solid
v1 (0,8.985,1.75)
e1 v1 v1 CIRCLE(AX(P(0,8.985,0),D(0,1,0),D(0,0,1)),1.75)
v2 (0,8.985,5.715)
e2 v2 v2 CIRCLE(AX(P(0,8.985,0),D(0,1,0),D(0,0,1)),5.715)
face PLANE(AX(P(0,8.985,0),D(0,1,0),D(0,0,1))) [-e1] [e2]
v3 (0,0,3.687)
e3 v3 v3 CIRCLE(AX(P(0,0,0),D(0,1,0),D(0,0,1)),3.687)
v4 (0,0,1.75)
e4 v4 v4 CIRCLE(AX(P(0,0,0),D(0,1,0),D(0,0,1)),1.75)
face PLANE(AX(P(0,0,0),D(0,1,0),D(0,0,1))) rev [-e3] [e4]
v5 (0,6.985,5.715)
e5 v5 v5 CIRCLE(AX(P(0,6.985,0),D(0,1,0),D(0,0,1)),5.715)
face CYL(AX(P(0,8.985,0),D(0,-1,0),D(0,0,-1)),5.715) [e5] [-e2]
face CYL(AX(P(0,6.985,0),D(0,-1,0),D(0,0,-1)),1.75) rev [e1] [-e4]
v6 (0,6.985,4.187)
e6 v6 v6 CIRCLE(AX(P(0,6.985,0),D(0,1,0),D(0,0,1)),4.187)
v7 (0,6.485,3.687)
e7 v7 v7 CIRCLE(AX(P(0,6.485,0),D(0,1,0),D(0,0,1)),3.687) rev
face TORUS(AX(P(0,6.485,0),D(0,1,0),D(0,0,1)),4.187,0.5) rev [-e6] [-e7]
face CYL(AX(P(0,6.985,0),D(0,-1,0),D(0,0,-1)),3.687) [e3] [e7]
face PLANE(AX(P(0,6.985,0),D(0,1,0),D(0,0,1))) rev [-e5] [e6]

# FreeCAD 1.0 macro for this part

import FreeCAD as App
import Part
import Sketcher
Q = App.Units.Quantity


def edges_at(feature, points):
    """Names of the edges that pass closest to the given points."""
    edges = feature.Shape.Edges
    near = lambda p: min(range(len(edges)), key=lambda i: edges[i].distToShape(Part.Vertex(*p))[0])
    return sorted({f"Edge{near(p) + 1}" for p in points})

doc = App.newDocument("Part")
body = doc.addObject("PartDesign::Body", "Body")

# Sketch on XZ plane
sketch1 = doc.addObject("Sketcher::SketchObject", "Sketch")
body.addObject(sketch1)
sketch1.AttachmentSupport = (doc.XZ_Plane, [""])
sketch1.MapMode = "FlatFace"
sketch1.addGeometry(Part.Circle(App.Vector(0, 0, 0), App.Vector(0, 0, 1), 3.7), False)
sketch1.addGeometry(Part.Circle(App.Vector(0, 0, 0), App.Vector(0, 0, 1), 1.8), False)
sketch1.addConstraint(Sketcher.Constraint("Coincident", 0, 3, -1, 1))
sketch1.addConstraint(Sketcher.Constraint("Coincident", 1, 3, -1, 1))
sketch1.addConstraint(Sketcher.Constraint("Diameter", 1, Q("3.5 mm")))
sketch1.addConstraint(Sketcher.Constraint("Diameter", 0, Q("7.374 mm")))
pad1 = doc.addObject("PartDesign::Pad", "Pad")
body.addObject(pad1)
pad1.Profile = sketch1
pad1.Length = 6.985
pad1.Reversed = True

# Sketch on XZ plane
sketch2 = doc.addObject("Sketcher::SketchObject", "Sketch001")
body.addObject(sketch2)
sketch2.AttachmentSupport = (doc.XZ_Plane, [""])
sketch2.MapMode = "FlatFace"
sketch2.AttachmentOffset = App.Placement(App.Vector(0, 0, -6.985), App.Rotation())
sketch2.addGeometry(Part.Circle(App.Vector(0, 0, 0), App.Vector(0, 0, 1), 5.7), False)
sketch2.addGeometry(Part.Circle(App.Vector(0, 0, 0), App.Vector(0, 0, 1), 1.8), False)
sketch2.addConstraint(Sketcher.Constraint("Coincident", 0, 3, -1, 1))
sketch2.addConstraint(Sketcher.Constraint("Coincident", 1, 3, -1, 1))
sketch2.addConstraint(Sketcher.Constraint("Diameter", 1, Q("3.5 mm")))
sketch2.addConstraint(Sketcher.Constraint("Diameter", 0, Q("11.43 mm")))
pad2 = doc.addObject("PartDesign::Pad", "Pad001")
body.addObject(pad2)
pad2.Profile = sketch2
pad2.Length = 2
pad2.Reversed = True
doc.recompute()

fillet = doc.addObject("PartDesign::Fillet", "Fillet")
body.addObject(fillet)
fillet.Base = (pad2, edges_at(pad2, [(0, 6.985, -3.687)]))
fillet.Radius = 0.5

doc.recompute()
